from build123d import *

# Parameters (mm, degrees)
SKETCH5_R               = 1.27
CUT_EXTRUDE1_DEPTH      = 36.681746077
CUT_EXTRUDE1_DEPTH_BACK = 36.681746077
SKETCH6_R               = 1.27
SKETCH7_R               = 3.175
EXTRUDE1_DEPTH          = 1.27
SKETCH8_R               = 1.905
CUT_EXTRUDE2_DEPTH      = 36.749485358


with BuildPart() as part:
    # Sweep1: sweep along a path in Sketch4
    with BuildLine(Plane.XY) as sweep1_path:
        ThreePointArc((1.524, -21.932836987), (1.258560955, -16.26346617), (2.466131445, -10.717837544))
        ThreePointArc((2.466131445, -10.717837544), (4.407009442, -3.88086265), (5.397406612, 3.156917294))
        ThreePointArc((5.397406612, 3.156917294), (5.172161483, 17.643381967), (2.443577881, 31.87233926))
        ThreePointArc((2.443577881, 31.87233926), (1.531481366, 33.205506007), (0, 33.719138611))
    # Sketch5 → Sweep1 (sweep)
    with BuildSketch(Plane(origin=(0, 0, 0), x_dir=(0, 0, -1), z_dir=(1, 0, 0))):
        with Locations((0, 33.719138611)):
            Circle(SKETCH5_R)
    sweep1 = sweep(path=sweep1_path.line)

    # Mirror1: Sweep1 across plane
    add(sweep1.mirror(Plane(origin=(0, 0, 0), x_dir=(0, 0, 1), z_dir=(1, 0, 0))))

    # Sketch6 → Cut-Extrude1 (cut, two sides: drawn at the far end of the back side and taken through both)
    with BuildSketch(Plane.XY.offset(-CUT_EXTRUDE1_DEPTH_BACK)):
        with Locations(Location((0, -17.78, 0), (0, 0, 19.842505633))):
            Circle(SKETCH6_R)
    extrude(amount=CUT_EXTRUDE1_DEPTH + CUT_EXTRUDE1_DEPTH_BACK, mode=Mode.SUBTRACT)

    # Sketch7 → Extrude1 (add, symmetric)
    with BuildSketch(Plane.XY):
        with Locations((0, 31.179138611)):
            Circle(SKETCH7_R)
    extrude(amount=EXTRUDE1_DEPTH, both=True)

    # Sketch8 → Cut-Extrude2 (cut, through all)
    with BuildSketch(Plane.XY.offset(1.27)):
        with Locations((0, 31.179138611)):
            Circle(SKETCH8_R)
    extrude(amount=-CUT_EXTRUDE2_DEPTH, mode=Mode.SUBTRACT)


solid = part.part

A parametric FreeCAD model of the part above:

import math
import FreeCAD as App
import Part
import Sketcher
from FreeCAD import Vector
Q = App.Units.Quantity

doc = App.newDocument("Part")
body = doc.addObject("PartDesign::Body", "Body")

# Sketch on YZ plane
sketch1 = body.newObject("Sketcher::SketchObject", "Sketch")
sketch1.AttachmentSupport = (doc.getObject("YZ_Plane"), [""])
sketch1.MapMode = "FlatFace"
sketch1.addGeometry(Part.Circle(Vector(33.7, 0, 0), Vector(0, 0, 1), 1.3), False)
sketch1.addConstraint(Sketcher.Constraint("PointOnObject", 0, 3, -1))
sketch1.addConstraint(Sketcher.Constraint("Diameter", 0, Q("0.1 in")))
sketch1.addConstraint(Sketcher.Constraint("DistanceX", -1, 1, 0, 3, 33.719139))

# Sketch on XY plane
sketch2 = body.newObject("Sketcher::SketchObject", "Sketch001")
sketch2.AttachmentSupport = (doc.getObject("XY_Plane"), [""])
sketch2.MapMode = "FlatFace"
sketch2.addGeometry(Part.ArcOfCircle(Part.Circle(Vector(23, -18.1, 0), Vector(0, 0, 1), 21.8), math.radians(160), math.radians(190)), False)
sketch2.addGeometry(Part.ArcOfCircle(Part.Circle(Vector(-46.5, 6.9, 0), Vector(0, 0, 1), 52), math.radians(-19.77), math.radians(-4.09)), False)
sketch2.addGeometry(Part.ArcOfCircle(Part.Circle(Vector(-77.8, 9.1, 0), Vector(0, 0, 1), 83.4), math.radians(-4.09), math.radians(15.84)), False)
sketch2.addGeometry(Part.ArcOfCircle(Part.Circle(Vector(0, 31.2, 0), Vector(0, 0, 1), 2.5), math.radians(16), math.radians(90)), False)
sketch2.addConstraint(Sketcher.Constraint("Tangent", 0, 1, 1, 1))
sketch2.addConstraint(Sketcher.Constraint("Tangent", 1, 2, 2, 1))
sketch2.addConstraint(Sketcher.Constraint("Tangent", 2, 2, 3, 1))
sketch2.addConstraint(Sketcher.Constraint("PointOnObject", 3, 3, -2))
sketch2.addConstraint(Sketcher.Constraint("PointOnObject", 3, 2, -2))
sketch2.addConstraint(Sketcher.Constraint("Radius", 3, Q("0.1 in")))
sketch2.addConstraint(Sketcher.Constraint("DistanceX", -1, 1, 0, 2, Q("0.06 in")))
sketch2.addConstraint(Sketcher.Constraint("Radius", 0, 21.791549))
sketch2.addConstraint(Sketcher.Constraint("Radius", 1, 51.995122))
sketch2.addConstraint(Sketcher.Constraint("Radius", 2, 83.411244))
sketch2.addConstraint(Sketcher.Constraint("DistanceX", 1, 3, -1, 1, 46.465199))
sketch2.addConstraint(Sketcher.Constraint("DistanceY", 0, 2, 0, 1, 11.214999))
sketch2.addConstraint(Sketcher.Constraint("DistanceY", 0, 3, -1, 1, 18.08767))
sketch2.addConstraint(Sketcher.Constraint("DistanceY", -1, 1, 3, 3, 31.179139))
doc.recompute()

additivepipe = body.newObject("PartDesign::AdditivePipe", "AdditivePipe")
additivepipe.Profile = sketch1
additivepipe.Spine = (sketch2, ["Edge1", "Edge2", "Edge3", "Edge4"])
doc.recompute()

mirrored = body.newObject("PartDesign::Mirrored", "Mirrored")
mirrored.Originals = [additivepipe]
mirrored.MirrorPlane = (doc.getObject("YZ_Plane"), [""])
body.Tip = mirrored

# Sketch on XY plane
sketch3 = body.newObject("Sketcher::SketchObject", "Sketch002")
sketch3.AttachmentSupport = (doc.getObject("XY_Plane"), [""])
sketch3.MapMode = "FlatFace"
sketch3.addGeometry(Part.Circle(Vector(0, -17.8, 0), Vector(0, 0, 1), 1.3), False)
sketch3.addConstraint(Sketcher.Constraint("PointOnObject", 0, 3, -2))
sketch3.addConstraint(Sketcher.Constraint("Diameter", 0, Q("0.1 in")))
sketch3.addConstraint(Sketcher.Constraint("DistanceY", 0, 3, -1, 1, Q("0.7 in")))
pocket1 = body.newObject("PartDesign::Pocket", "Pocket")
pocket1.Profile = sketch3
pocket1.Type = "ThroughAll"
pocket1.Midplane = True

# Sketch on XY plane
sketch4 = body.newObject("Sketcher::SketchObject", "Sketch003")
sketch4.AttachmentSupport = (doc.getObject("XY_Plane"), [""])
sketch4.MapMode = "FlatFace"
sketch4.addGeometry(Part.Circle(Vector(0, 31.2, 0), Vector(0, 0, 1), 3.2), False)
sketch4.addConstraint(Sketcher.Constraint("PointOnObject", 0, 3, -2))
sketch4.addConstraint(Sketcher.Constraint("Diameter", 0, Q("0.25 in")))
sketch4.addConstraint(Sketcher.Constraint("DistanceY", -1, 1, 0, 3, 31.179139))
pad1 = body.newObject("PartDesign::Pad", "Pad")
pad1.Profile = sketch4
pad1.Length = Q("0.1 in")
pad1.Midplane = True

# Sketch on XY plane
sketch5 = body.newObject("Sketcher::SketchObject", "Sketch004")
sketch5.AttachmentSupport = (doc.getObject("XY_Plane"), [""])
sketch5.MapMode = "FlatFace"
sketch5.AttachmentOffset = App.Placement(Vector(0, 0, 0.05 * 25.4), App.Rotation())
sketch5.addGeometry(Part.Circle(Vector(0, 31.2, 0), Vector(0, 0, 1), 1.9), False)
sketch5.addConstraint(Sketcher.Constraint("PointOnObject", 0, 3, -2))
sketch5.addConstraint(Sketcher.Constraint("Diameter", 0, Q("0.15 in")))
sketch5.addConstraint(Sketcher.Constraint("DistanceY", -1, 1, 0, 3, 31.179139))
pocket2 = body.newObject("PartDesign::Pocket", "Pocket001")
pocket2.Profile = sketch5
pocket2.Type = "ThroughAll"

doc.recompute()
